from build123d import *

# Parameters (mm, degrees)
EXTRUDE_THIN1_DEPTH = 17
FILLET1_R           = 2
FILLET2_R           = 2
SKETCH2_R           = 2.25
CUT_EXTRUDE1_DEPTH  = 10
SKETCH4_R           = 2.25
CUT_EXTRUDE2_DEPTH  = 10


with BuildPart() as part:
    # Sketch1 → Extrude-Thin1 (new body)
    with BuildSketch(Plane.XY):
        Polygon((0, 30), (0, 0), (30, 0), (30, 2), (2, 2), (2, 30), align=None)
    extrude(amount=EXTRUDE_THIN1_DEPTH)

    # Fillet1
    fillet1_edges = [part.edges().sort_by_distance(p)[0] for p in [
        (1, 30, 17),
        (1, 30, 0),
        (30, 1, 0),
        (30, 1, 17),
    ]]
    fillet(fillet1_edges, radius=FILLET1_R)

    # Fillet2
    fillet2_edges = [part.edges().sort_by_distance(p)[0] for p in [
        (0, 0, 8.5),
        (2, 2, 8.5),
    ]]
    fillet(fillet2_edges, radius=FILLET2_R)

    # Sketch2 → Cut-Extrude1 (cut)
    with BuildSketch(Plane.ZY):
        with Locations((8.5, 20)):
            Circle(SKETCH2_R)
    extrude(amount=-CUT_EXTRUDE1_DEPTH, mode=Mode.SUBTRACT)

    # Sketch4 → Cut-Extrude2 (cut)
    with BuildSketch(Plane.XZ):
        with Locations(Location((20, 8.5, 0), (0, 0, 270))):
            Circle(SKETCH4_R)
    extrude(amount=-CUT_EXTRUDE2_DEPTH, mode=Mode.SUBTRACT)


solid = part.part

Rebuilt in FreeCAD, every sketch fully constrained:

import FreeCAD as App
import Part
import Sketcher

V = App.Vector


def edges_at(feature, points):
    """Names of the edges that pass closest to the given points."""
    edges = feature.Shape.Edges
    near = lambda p: min(range(len(edges)), key=lambda i: edges[i].distToShape(Part.Vertex(*p))[0])
    return sorted({f"Edge{near(p) + 1}" for p in points})

doc = App.newDocument("Part")
body = doc.addObject("PartDesign::Body", "Body")

sketch1 = body.newObject("Sketcher::SketchObject", "Sketch")
sketch1.AttachmentSupport = (doc.getObject("XY_Plane"), [""])
sketch1.MapMode = "FlatFace"
sketch1.addGeometry([
    Part.LineSegment(V(0, 30, 0), V(0, 0, 0)),
    Part.LineSegment(V(0, 0, 0), V(30, 0, 0)),
    Part.LineSegment(V(30, 0, 0), V(30, 2, 0)),
    Part.LineSegment(V(30, 2, 0), V(2, 2, 0)),
    Part.LineSegment(V(2, 2, 0), V(2, 30, 0)),
    Part.LineSegment(V(2, 30, 0), V(0, 30, 0)),
], False)
sketch1.addConstraint([
    Sketcher.Constraint("Coincident", 0, 2, 1, 1),
    Sketcher.Constraint("Coincident", 1, 2, 2, 1),
    Sketcher.Constraint("Coincident", 2, 2, 3, 1),
    Sketcher.Constraint("Coincident", 3, 2, 4, 1),
    Sketcher.Constraint("Coincident", 4, 2, 5, 1),
    Sketcher.Constraint("Coincident", 5, 2, 0, 1),
    Sketcher.Constraint("Vertical", 0),
    Sketcher.Constraint("Horizontal", 1),
    Sketcher.Constraint("Vertical", 2),
    Sketcher.Constraint("Horizontal", 3),
    Sketcher.Constraint("Vertical", 4),
    Sketcher.Constraint("Horizontal", 5),
    Sketcher.Constraint("Coincident", 0, 2, -1, 1),
    Sketcher.Constraint("Equal", 1, 0),
    Sketcher.Constraint("Equal", 5, 2),
    Sketcher.Constraint("DistanceX", 1, 1, 1, 2, 30.0),
    Sketcher.Constraint("DistanceX", 3, 2, 3, 1, 28.0),
])
pad1 = body.newObject("PartDesign::Pad", "Pad")
pad1.Profile = sketch1
pad1.Length = 17
doc.recompute()

fillet = body.newObject("PartDesign::Fillet", "Fillet")
fillet.Base = (pad1, edges_at(pad1, [
    (1, 30, 17),
    (1, 30, 0),
    (30, 1, 0),
    (30, 1, 17),
]))
fillet.Radius = 2
doc.recompute()

fillet2 = body.newObject("PartDesign::Fillet", "Fillet001")
fillet2.Base = (fillet, edges_at(fillet, [(0, 0, 8.5), (2, 2, 8.5)]))
fillet2.Radius = 2

sketch2 = body.newObject("Sketcher::SketchObject", "Sketch001")
sketch2.AttachmentSupport = (doc.getObject("YZ_Plane"), [""])
sketch2.MapMode = "FlatFace"
sketch2.addGeometry(Part.Circle(V(20, 8.5, 0), V(0, 0, 1), 2.25), False)
sketch2.addConstraint([
    Sketcher.Constraint("Diameter", 0, 4.5),
    Sketcher.Constraint("DistanceX", -1, 1, 0, 3, 20.0),
    Sketcher.Constraint("DistanceY", -1, 1, 0, 3, 8.5),
])
pocket1 = body.newObject("PartDesign::Pocket", "Pocket")
pocket1.Profile = sketch2
pocket1.Length = 10
pocket1.Reversed = True

sketch3 = body.newObject("Sketcher::SketchObject", "Sketch002")
sketch3.AttachmentSupport = (doc.getObject("XZ_Plane"), [""])
sketch3.MapMode = "FlatFace"
sketch3.addGeometry(Part.Circle(V(20, 8.5, 0), V(0, 0, 1), 2.25), False)
sketch3.addConstraint([
    Sketcher.Constraint("Diameter", 0, 4.5),
    Sketcher.Constraint("DistanceX", -1, 1, 0, 3, 20.0),
    Sketcher.Constraint("DistanceY", -1, 1, 0, 3, 8.5),
])
pocket2 = body.newObject("PartDesign::Pocket", "Pocket001")
pocket2.Profile = sketch3
pocket2.Length = 10

doc.recompute()
